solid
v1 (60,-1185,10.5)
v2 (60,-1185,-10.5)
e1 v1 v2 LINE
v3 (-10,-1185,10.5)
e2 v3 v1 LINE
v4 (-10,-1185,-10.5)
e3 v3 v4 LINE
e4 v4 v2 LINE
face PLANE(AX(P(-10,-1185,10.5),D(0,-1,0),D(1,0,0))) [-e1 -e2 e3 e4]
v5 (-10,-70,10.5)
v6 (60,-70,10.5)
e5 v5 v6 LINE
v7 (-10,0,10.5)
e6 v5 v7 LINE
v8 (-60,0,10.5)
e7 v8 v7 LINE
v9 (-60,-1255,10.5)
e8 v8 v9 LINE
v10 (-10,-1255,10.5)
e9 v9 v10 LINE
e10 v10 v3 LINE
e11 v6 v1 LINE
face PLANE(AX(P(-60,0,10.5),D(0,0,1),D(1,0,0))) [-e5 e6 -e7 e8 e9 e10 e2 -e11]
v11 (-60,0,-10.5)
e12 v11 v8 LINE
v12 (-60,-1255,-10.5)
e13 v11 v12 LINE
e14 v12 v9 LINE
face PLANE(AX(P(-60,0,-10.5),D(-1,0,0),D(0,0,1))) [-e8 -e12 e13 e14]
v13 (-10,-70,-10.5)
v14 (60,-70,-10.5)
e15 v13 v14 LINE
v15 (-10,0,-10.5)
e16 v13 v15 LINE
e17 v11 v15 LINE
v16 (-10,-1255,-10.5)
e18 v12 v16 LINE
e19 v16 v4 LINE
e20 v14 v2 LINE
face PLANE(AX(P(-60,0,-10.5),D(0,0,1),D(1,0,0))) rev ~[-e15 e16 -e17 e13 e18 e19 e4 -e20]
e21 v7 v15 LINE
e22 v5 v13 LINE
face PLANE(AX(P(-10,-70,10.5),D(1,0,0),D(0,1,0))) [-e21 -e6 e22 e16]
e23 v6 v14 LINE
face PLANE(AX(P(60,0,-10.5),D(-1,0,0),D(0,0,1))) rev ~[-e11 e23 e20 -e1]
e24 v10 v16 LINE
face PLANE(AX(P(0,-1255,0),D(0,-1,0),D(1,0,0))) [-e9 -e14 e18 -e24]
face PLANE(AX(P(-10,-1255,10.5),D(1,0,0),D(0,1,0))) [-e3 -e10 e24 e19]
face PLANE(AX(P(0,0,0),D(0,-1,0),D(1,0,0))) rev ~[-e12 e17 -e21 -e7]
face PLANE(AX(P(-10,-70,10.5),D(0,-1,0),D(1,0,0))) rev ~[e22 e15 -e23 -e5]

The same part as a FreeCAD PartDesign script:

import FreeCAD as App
import Part
import Sketcher
Q = App.Units.Quantity

doc = App.newDocument("Part")
params = doc.addObject("Spreadsheet::Sheet", "Params")
for row, (alias, value) in enumerate([
    ("sketch1_width", "120 mm"),
    ("sketch1_height", "21 mm"),
    ("pad1_length", "1255 mm"),
    ("sketch2_width", "70 mm"),
    ("pocket1_length", "25 mm"),
], start=1):
    params.set(f"A{row}", alias)
    params.set(f"B{row}", "=" + value)
    params.setAlias(f"B{row}", alias)

body = doc.addObject("PartDesign::Body", "Body")

sketch1 = body.newObject("Sketcher::SketchObject", "Sketch")
sketch1.AttachmentSupport = (doc.getObject("XZ_Plane"), [""])
sketch1.MapMode = "FlatFace"
sketch1.addGeometry([
    Part.LineSegment(App.Vector(-60, 10, 0), App.Vector(-60, -10, 0)),
    Part.LineSegment(App.Vector(-60, -10, 0), App.Vector(60, -10, 0)),
    Part.LineSegment(App.Vector(60, -10, 0), App.Vector(60, 10, 0)),
    Part.LineSegment(App.Vector(60, 10, 0), App.Vector(-60, 10, 0)),
], False)
sketch1.addConstraint([
    Sketcher.Constraint("Coincident", 0, 2, 1, 1),
    Sketcher.Constraint("Coincident", 1, 2, 2, 1),
    Sketcher.Constraint("Coincident", 2, 2, 3, 1),
    Sketcher.Constraint("Coincident", 3, 2, 0, 1),
    Sketcher.Constraint("Vertical", 0),
    Sketcher.Constraint("Horizontal", 1),
    Sketcher.Constraint("Vertical", 2),
    Sketcher.Constraint("Horizontal", 3),
    Sketcher.Constraint("Symmetric", 0, 2, 2, 2, -1, 1),
    Sketcher.Constraint("DistanceX", 1, 1, 1, 2, Q("120 mm")),
    Sketcher.Constraint("DistanceY", 0, 2, 0, 1, Q("21 mm")),
])
sketch1.setExpression("Constraints[9]", "Params.sketch1_width")
sketch1.setExpression("Constraints[10]", "Params.sketch1_height")
pad1 = body.newObject("PartDesign::Pad", "Pad")
pad1.Profile = sketch1
pad1.setExpression("Length", "Params.pad1_length")

sketch2 = body.newObject("Sketcher::SketchObject", "Sketch001")
sketch2.AttachmentSupport = (doc.getObject("XY_Plane"), [""])
sketch2.MapMode = "FlatFace"
sketch2.AttachmentOffset = App.Placement(App.Vector(0, 0, 10.5), App.Rotation())
sketch2.addGeometry([
    Part.LineSegment(App.Vector(-10, -1185, 0), App.Vector(-10, -1255, 0)),
    Part.LineSegment(App.Vector(-10, -1255, 0), App.Vector(60, -1255, 0)),
    Part.LineSegment(App.Vector(60, -1255, 0), App.Vector(60, -1185, 0)),
    Part.LineSegment(App.Vector(60, -1185, 0), App.Vector(-10, -1185, 0)),
    Part.LineSegment(App.Vector(-10, 0, 0), App.Vector(-10, -70, 0)),
    Part.LineSegment(App.Vector(-10, -70, 0), App.Vector(60, -70, 0)),
    Part.LineSegment(App.Vector(60, -70, 0), App.Vector(60, 0, 0)),
    Part.LineSegment(App.Vector(60, 0, 0), App.Vector(-10, 0, 0)),
], False)
sketch2.addConstraint([
    Sketcher.Constraint("Coincident", 0, 2, 1, 1),
    Sketcher.Constraint("Coincident", 1, 2, 2, 1),
    Sketcher.Constraint("Coincident", 2, 2, 3, 1),
    Sketcher.Constraint("Coincident", 3, 2, 0, 1),
    Sketcher.Constraint("Coincident", 4, 2, 5, 1),
    Sketcher.Constraint("Coincident", 5, 2, 6, 1),
    Sketcher.Constraint("Coincident", 6, 2, 7, 1),
    Sketcher.Constraint("Coincident", 7, 2, 4, 1),
    Sketcher.Constraint("Vertical", 0),
    Sketcher.Constraint("Horizontal", 1),
    Sketcher.Constraint("Vertical", 2),
    Sketcher.Constraint("Horizontal", 3),
    Sketcher.Constraint("Vertical", 4),
    Sketcher.Constraint("Horizontal", 5),
    Sketcher.Constraint("Vertical", 6),
    Sketcher.Constraint("Horizontal", 7),
    Sketcher.Constraint("PointOnObject", 6, 2, -1),
    Sketcher.Constraint("Vertical", 3, 2, 4, 2),
    Sketcher.Constraint("Vertical", 2, 2, 5, 2),
    Sketcher.Constraint("Equal", 7, 0),
    Sketcher.Constraint("Equal", 2, 4),
    Sketcher.Constraint("DistanceX", 1, 1, 1, 2, Q("70 mm")),
    Sketcher.Constraint("DistanceX", 0, 2, -1, 1, Q("10 mm")),
    Sketcher.Constraint("DistanceY", 0, 2, -1, 1, Q("1255 mm")),
])
sketch2.setExpression("Constraints[21]", "Params.sketch2_width")
pocket1 = body.newObject("PartDesign::Pocket", "Pocket")
pocket1.Profile = sketch2
pocket1.setExpression("Length", "Params.pocket1_length")

doc.recompute()
